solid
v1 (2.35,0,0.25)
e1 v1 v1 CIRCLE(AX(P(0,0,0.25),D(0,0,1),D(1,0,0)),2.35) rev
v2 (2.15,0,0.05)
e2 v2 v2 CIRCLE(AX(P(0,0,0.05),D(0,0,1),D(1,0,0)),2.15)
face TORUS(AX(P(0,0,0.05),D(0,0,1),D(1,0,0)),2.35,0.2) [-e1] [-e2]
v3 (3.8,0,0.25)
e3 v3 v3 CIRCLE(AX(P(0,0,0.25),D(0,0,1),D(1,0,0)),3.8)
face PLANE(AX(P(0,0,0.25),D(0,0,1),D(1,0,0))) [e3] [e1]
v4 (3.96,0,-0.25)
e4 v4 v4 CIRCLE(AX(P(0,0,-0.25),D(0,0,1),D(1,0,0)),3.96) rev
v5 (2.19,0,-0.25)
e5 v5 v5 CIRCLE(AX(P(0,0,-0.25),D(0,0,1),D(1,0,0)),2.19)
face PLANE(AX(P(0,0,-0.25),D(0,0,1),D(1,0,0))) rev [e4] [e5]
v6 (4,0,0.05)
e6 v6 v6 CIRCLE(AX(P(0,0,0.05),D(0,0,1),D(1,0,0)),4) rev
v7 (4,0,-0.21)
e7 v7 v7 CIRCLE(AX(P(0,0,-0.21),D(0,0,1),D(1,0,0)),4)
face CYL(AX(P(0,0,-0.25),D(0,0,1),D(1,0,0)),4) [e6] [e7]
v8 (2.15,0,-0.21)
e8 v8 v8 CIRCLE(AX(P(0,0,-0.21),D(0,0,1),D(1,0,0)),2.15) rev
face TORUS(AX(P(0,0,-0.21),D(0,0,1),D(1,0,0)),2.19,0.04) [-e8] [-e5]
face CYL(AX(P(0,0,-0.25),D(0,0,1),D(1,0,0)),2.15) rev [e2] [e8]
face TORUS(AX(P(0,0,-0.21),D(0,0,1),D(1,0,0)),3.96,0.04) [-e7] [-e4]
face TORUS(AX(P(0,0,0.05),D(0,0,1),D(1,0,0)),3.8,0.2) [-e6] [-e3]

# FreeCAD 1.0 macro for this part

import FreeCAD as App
import Part
import Sketcher
from FreeCAD import Vector
Q = App.Units.Quantity


def edges_at(feature, points):
    """Names of the edges that pass closest to the given points."""
    edges = feature.Shape.Edges
    near = lambda p: min(range(len(edges)), key=lambda i: edges[i].distToShape(Part.Vertex(*p))[0])
    return sorted({f"Edge{near(p) + 1}" for p in points})

doc = App.newDocument("Part")
body = doc.addObject("PartDesign::Body", "Body")

sketch1 = body.newObject("Sketcher::SketchObject", "Sketch")
sketch1.AttachmentSupport = (doc.getObject("XY_Plane"), [""])
sketch1.MapMode = "FlatFace"
sketch1.addGeometry([
    Part.Circle(Vector(0, 0, 0), Vector(0, 0, 1), 4),
    Part.Circle(Vector(0, 0, 0), Vector(0, 0, 1), 2.1),
], False)
sketch1.addConstraint([
    Sketcher.Constraint("Coincident", 0, 3, -1, 1),
    Sketcher.Constraint("Coincident", 1, 3, -1, 1),
    Sketcher.Constraint("Diameter", 0, Q("8 mm")),
    Sketcher.Constraint("Diameter", 1, Q("4.3 mm")),
])
pad1 = body.newObject("PartDesign::Pad", "Pad")
pad1.Profile = sketch1
pad1.Type = "TwoLengths"
pad1.Length = 0.25
pad1.Length2 = 0.25
doc.recompute()

fillet = body.newObject("PartDesign::Fillet", "Fillet")
fillet.Base = (pad1, edges_at(pad1, [(-4, 0, 0.25), (-2.15, 0, 0.25)]))
fillet.Radius = 0.2
doc.recompute()

fillet2 = body.newObject("PartDesign::Fillet", "Fillet001")
fillet2.Base = (fillet, edges_at(fillet, [(-4, 0, -0.25), (-2.15, 0, -0.25)]))
fillet2.Radius = 0.04

doc.recompute()
